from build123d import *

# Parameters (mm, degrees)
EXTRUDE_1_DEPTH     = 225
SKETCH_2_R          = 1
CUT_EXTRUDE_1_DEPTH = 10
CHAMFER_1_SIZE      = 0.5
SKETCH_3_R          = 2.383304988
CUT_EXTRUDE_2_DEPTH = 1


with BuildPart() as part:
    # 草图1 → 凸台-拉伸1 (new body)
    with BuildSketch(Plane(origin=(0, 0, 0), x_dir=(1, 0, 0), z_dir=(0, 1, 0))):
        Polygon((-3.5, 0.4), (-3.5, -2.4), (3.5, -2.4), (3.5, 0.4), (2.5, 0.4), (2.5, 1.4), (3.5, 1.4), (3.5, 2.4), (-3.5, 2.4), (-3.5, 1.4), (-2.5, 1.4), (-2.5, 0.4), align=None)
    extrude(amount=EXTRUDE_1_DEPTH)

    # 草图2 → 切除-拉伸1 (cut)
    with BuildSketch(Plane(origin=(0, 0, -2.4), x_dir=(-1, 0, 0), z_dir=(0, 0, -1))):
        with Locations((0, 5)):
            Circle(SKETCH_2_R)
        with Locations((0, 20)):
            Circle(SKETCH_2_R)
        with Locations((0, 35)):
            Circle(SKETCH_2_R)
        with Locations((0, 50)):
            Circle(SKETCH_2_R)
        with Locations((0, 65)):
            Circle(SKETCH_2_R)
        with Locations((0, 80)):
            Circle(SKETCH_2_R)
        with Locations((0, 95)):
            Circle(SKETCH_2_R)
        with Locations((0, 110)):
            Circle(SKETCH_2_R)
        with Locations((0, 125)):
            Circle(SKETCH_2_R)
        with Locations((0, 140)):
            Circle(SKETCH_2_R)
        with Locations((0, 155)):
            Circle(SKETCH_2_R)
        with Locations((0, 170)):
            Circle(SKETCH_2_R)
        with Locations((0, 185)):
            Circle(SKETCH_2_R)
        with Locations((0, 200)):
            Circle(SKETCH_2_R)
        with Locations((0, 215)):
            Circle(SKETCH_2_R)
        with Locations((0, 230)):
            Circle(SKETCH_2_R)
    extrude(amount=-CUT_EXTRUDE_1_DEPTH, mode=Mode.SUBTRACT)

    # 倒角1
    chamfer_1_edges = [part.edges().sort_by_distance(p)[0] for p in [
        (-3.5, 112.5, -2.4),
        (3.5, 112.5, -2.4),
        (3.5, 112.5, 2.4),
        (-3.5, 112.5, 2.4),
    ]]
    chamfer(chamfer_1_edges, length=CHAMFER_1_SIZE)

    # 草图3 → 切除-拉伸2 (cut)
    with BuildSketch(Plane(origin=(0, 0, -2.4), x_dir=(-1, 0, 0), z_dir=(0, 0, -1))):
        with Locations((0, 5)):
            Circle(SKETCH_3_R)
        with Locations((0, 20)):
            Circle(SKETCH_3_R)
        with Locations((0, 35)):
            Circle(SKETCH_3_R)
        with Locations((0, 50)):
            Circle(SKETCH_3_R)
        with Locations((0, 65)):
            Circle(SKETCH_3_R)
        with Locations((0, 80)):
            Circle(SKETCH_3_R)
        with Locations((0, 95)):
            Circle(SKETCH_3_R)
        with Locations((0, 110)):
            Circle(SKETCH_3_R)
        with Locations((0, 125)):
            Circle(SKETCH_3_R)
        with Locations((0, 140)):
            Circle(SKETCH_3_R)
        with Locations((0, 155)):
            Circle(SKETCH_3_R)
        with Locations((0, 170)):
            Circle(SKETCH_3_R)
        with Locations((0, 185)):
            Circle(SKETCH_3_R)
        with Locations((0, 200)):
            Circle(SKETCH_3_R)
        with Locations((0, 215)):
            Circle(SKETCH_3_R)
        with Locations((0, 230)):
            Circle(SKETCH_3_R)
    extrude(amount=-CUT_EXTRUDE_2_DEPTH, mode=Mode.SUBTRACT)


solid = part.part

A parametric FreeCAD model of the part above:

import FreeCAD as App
import Part
import Sketcher


def edges_at(feature, points):
    """Names of the edges that pass closest to the given points."""
    edges = feature.Shape.Edges
    near = lambda p: min(range(len(edges)), key=lambda i: edges[i].distToShape(Part.Vertex(*p))[0])
    return sorted({f"Edge{near(p) + 1}" for p in points})


def add_polygon(sketch, points):
    """Adds a closed chain of lines whose ends are joined by coincident constraints."""
    first, n = sketch.GeometryCount, len(points)
    for a, b in zip(points, points[1:] + points[:1]):
        sketch.addGeometry(Part.LineSegment(App.Vector(*a, 0), App.Vector(*b, 0)), False)
    for i in range(n):
        sketch.addConstraint(Sketcher.Constraint("Coincident", first + i, 2, first + (i + 1) % n, 1))

doc = App.newDocument("Part")
body = doc.addObject("PartDesign::Body", "Body")

# Sketch on XZ plane
sketch1 = body.newObject("Sketcher::SketchObject", "Sketch")
sketch1.AttachmentSupport = (doc.getObject("XZ_Plane"), [""])
sketch1.MapMode = "FlatFace"
add_polygon(sketch1, [(-3.5, -0.4), (-3.5, 2.4), (3.5, 2.4), (3.5, -0.4), (2.5, -0.4), (2.5, -1.4), (3.5, -1.4), (3.5, -2.4), (-3.5, -2.4), (-3.5, -1.4), (-2.5, -1.4), (-2.5, -0.4)])  # lines 0-11
sketch1.addConstraint([
    Sketcher.Constraint("Vertical", 0),
    Sketcher.Constraint("Horizontal", 1),
    Sketcher.Constraint("Vertical", 2),
    Sketcher.Constraint("Horizontal", 3),
    Sketcher.Constraint("Vertical", 4),
    Sketcher.Constraint("Horizontal", 5),
    Sketcher.Constraint("Vertical", 6),
    Sketcher.Constraint("Horizontal", 7),
    Sketcher.Constraint("Vertical", 8),
    Sketcher.Constraint("Horizontal", 9),
    Sketcher.Constraint("Vertical", 10),
    Sketcher.Constraint("Horizontal", 11),
    Sketcher.Constraint("Symmetric", 0, 2, 6, 2, -1, 1),
    Sketcher.Constraint("Symmetric", 5, 2, 8, 2, -2),
    Sketcher.Constraint("Symmetric", 3, 2, 10, 2, -2),
    Sketcher.Constraint("Vertical", 2, 2, 5, 2),
    Sketcher.Constraint("Equal", 11, 4),
    Sketcher.Constraint("Equal", 4, 6),
    Sketcher.Constraint("DistanceX", 1, 1, 1, 2, 7.0),
    Sketcher.Constraint("DistanceX", 3, 2, 3, 1, 1.0),
    Sketcher.Constraint("DistanceY", 0, 1, 0, 2, 2.8),
])
pad1 = body.newObject("PartDesign::Pad", "Pad")
pad1.Profile = sketch1
pad1.Length = 225
pad1.Reversed = True

# Sketch on XY plane
sketch2 = body.newObject("Sketcher::SketchObject", "Sketch001")
sketch2.AttachmentSupport = (doc.getObject("XY_Plane"), [""])
sketch2.MapMode = "FlatFace"
sketch2.AttachmentOffset = App.Placement(App.Vector(0, 0, -2.4), App.Rotation())
sketch2.addGeometry([
    Part.Circle(App.Vector(0, 5, 0), App.Vector(0, 0, 1), 1),  # 0
    Part.Circle(App.Vector(0, 20, 0), App.Vector(0, 0, 1), 1),  # 1
    Part.Circle(App.Vector(0, 35, 0), App.Vector(0, 0, 1), 1),  # 2
    Part.Circle(App.Vector(0, 50, 0), App.Vector(0, 0, 1), 1),  # 3
    Part.Circle(App.Vector(0, 65, 0), App.Vector(0, 0, 1), 1),  # 4
    Part.Circle(App.Vector(0, 80, 0), App.Vector(0, 0, 1), 1),  # 5
    Part.Circle(App.Vector(0, 95, 0), App.Vector(0, 0, 1), 1),  # 6
    Part.Circle(App.Vector(0, 110, 0), App.Vector(0, 0, 1), 1),  # 7
    Part.Circle(App.Vector(0, 125, 0), App.Vector(0, 0, 1), 1),  # 8
    Part.Circle(App.Vector(0, 140, 0), App.Vector(0, 0, 1), 1),  # 9
    Part.Circle(App.Vector(0, 155, 0), App.Vector(0, 0, 1), 1),  # 10
    Part.Circle(App.Vector(0, 170, 0), App.Vector(0, 0, 1), 1),  # 11
    Part.Circle(App.Vector(0, 185, 0), App.Vector(0, 0, 1), 1),  # 12
    Part.Circle(App.Vector(0, 200, 0), App.Vector(0, 0, 1), 1),  # 13
    Part.Circle(App.Vector(0, 215, 0), App.Vector(0, 0, 1), 1),  # 14
    Part.Circle(App.Vector(0, 230, 0), App.Vector(0, 0, 1), 1),  # 15
], False)
sketch2.addConstraint([
    Sketcher.Constraint("Equal", 0, 1),
    Sketcher.Constraint("Equal", 1, 2),
    Sketcher.Constraint("Equal", 2, 3),
    Sketcher.Constraint("Equal", 3, 4),
    Sketcher.Constraint("Equal", 4, 5),
    Sketcher.Constraint("Equal", 5, 6),
    Sketcher.Constraint("Equal", 6, 7),
    Sketcher.Constraint("Equal", 7, 8),
    Sketcher.Constraint("Equal", 8, 9),
    Sketcher.Constraint("Equal", 9, 10),
    Sketcher.Constraint("Equal", 10, 11),
    Sketcher.Constraint("Equal", 11, 12),
    Sketcher.Constraint("Equal", 12, 13),
    Sketcher.Constraint("Equal", 13, 14),
    Sketcher.Constraint("Equal", 14, 15),
    Sketcher.Constraint("PointOnObject", 0, 3, -2),
    Sketcher.Constraint("PointOnObject", 1, 3, -2),
    Sketcher.Constraint("PointOnObject", 2, 3, -2),
    Sketcher.Constraint("PointOnObject", 3, 3, -2),
    Sketcher.Constraint("PointOnObject", 4, 3, -2),
    Sketcher.Constraint("PointOnObject", 5, 3, -2),
    Sketcher.Constraint("PointOnObject", 6, 3, -2),
    Sketcher.Constraint("PointOnObject", 7, 3, -2),
    Sketcher.Constraint("PointOnObject", 8, 3, -2),
    Sketcher.Constraint("PointOnObject", 9, 3, -2),
    Sketcher.Constraint("PointOnObject", 10, 3, -2),
    Sketcher.Constraint("PointOnObject", 11, 3, -2),
    Sketcher.Constraint("PointOnObject", 12, 3, -2),
    Sketcher.Constraint("PointOnObject", 13, 3, -2),
    Sketcher.Constraint("PointOnObject", 14, 3, -2),
    Sketcher.Constraint("PointOnObject", 15, 3, -2),
    Sketcher.Constraint("Diameter", 0, 2.0),
    Sketcher.Constraint("DistanceY", -1, 1, 0, 3, 5.0),
    Sketcher.Constraint("DistanceY", -1, 1, 1, 3, 20.0),
    Sketcher.Constraint("DistanceY", -1, 1, 2, 3, 35.0),
    Sketcher.Constraint("DistanceY", -1, 1, 3, 3, 50.0),
    Sketcher.Constraint("DistanceY", -1, 1, 4, 3, 65.0),
    Sketcher.Constraint("DistanceY", -1, 1, 5, 3, 80.0),
    Sketcher.Constraint("DistanceY", -1, 1, 6, 3, 95.0),
    Sketcher.Constraint("DistanceY", -1, 1, 7, 3, 110.0),
    Sketcher.Constraint("DistanceY", -1, 1, 8, 3, 125.0),
    Sketcher.Constraint("DistanceY", -1, 1, 9, 3, 140.0),
    Sketcher.Constraint("DistanceY", -1, 1, 10, 3, 155.0),
    Sketcher.Constraint("DistanceY", -1, 1, 11, 3, 170.0),
    Sketcher.Constraint("DistanceY", -1, 1, 12, 3, 185.0),
    Sketcher.Constraint("DistanceY", -1, 1, 13, 3, 200.0),
    Sketcher.Constraint("DistanceY", -1, 1, 14, 3, 215.0),
    Sketcher.Constraint("DistanceY", -1, 1, 15, 3, 230.0),
])
pocket1 = body.newObject("PartDesign::Pocket", "Pocket")
pocket1.Profile = sketch2
pocket1.Length = 10
pocket1.Reversed = True
doc.recompute()

chamfer = body.newObject("PartDesign::Chamfer", "Chamfer")
chamfer.Base = (pocket1, edges_at(pocket1, [
    (-3.5, 112.5, -2.4),
    (3.5, 112.5, -2.4),
    (3.5, 112.5, 2.4),
    (-3.5, 112.5, 2.4),
]))
chamfer.Size = 0.5

# Sketch on XY plane
sketch3 = body.newObject("Sketcher::SketchObject", "Sketch002")
sketch3.AttachmentSupport = (doc.getObject("XY_Plane"), [""])
sketch3.MapMode = "FlatFace"
sketch3.AttachmentOffset = App.Placement(App.Vector(0, 0, -2.4), App.Rotation())
sketch3.addGeometry([
    Part.Circle(App.Vector(0, 5, 0), App.Vector(0, 0, 1), 2.383305),  # 0
    Part.Circle(App.Vector(0, 20, 0), App.Vector(0, 0, 1), 2.383305),  # 1
    Part.Circle(App.Vector(0, 35, 0), App.Vector(0, 0, 1), 2.383305),  # 2
    Part.Circle(App.Vector(0, 50, 0), App.Vector(0, 0, 1), 2.383305),  # 3
    Part.Circle(App.Vector(0, 65, 0), App.Vector(0, 0, 1), 2.383305),  # 4
    Part.Circle(App.Vector(0, 80, 0), App.Vector(0, 0, 1), 2.383305),  # 5
    Part.Circle(App.Vector(0, 95, 0), App.Vector(0, 0, 1), 2.383305),  # 6
    Part.Circle(App.Vector(0, 110, 0), App.Vector(0, 0, 1), 2.383305),  # 7
    Part.Circle(App.Vector(0, 125, 0), App.Vector(0, 0, 1), 2.383305),  # 8
    Part.Circle(App.Vector(0, 140, 0), App.Vector(0, 0, 1), 2.383305),  # 9
    Part.Circle(App.Vector(0, 155, 0), App.Vector(0, 0, 1), 2.383305),  # 10
    Part.Circle(App.Vector(0, 170, 0), App.Vector(0, 0, 1), 2.383305),  # 11
    Part.Circle(App.Vector(0, 185, 0), App.Vector(0, 0, 1), 2.383305),  # 12
    Part.Circle(App.Vector(0, 200, 0), App.Vector(0, 0, 1), 2.383305),  # 13
    Part.Circle(App.Vector(0, 215, 0), App.Vector(0, 0, 1), 2.383305),  # 14
    Part.Circle(App.Vector(0, 230, 0), App.Vector(0, 0, 1), 2.383305),  # 15
], False)
sketch3.addConstraint([
    Sketcher.Constraint("Equal", 0, 1),
    Sketcher.Constraint("Equal", 1, 2),
    Sketcher.Constraint("Equal", 2, 3),
    Sketcher.Constraint("Equal", 3, 4),
    Sketcher.Constraint("Equal", 4, 5),
    Sketcher.Constraint("Equal", 5, 6),
    Sketcher.Constraint("Equal", 6, 7),
    Sketcher.Constraint("Equal", 7, 8),
    Sketcher.Constraint("Equal", 8, 9),
    Sketcher.Constraint("Equal", 9, 10),
    Sketcher.Constraint("Equal", 10, 11),
    Sketcher.Constraint("Equal", 11, 12),
    Sketcher.Constraint("Equal", 12, 13),
    Sketcher.Constraint("Equal", 13, 14),
    Sketcher.Constraint("Equal", 14, 15),
    Sketcher.Constraint("PointOnObject", 0, 3, -2),
    Sketcher.Constraint("PointOnObject", 1, 3, -2),
    Sketcher.Constraint("PointOnObject", 2, 3, -2),
    Sketcher.Constraint("PointOnObject", 3, 3, -2),
    Sketcher.Constraint("PointOnObject", 4, 3, -2),
    Sketcher.Constraint("PointOnObject", 5, 3, -2),
    Sketcher.Constraint("PointOnObject", 6, 3, -2),
    Sketcher.Constraint("PointOnObject", 7, 3, -2),
    Sketcher.Constraint("PointOnObject", 8, 3, -2),
    Sketcher.Constraint("PointOnObject", 9, 3, -2),
    Sketcher.Constraint("PointOnObject", 10, 3, -2),
    Sketcher.Constraint("PointOnObject", 11, 3, -2),
    Sketcher.Constraint("PointOnObject", 12, 3, -2),
    Sketcher.Constraint("PointOnObject", 13, 3, -2),
    Sketcher.Constraint("PointOnObject", 14, 3, -2),
    Sketcher.Constraint("PointOnObject", 15, 3, -2),
    Sketcher.Constraint("DistanceY", -1, 1, 0, 3, 5.0),
    Sketcher.Constraint("DistanceY", -1, 1, 1, 3, 20.0),
    Sketcher.Constraint("DistanceY", -1, 1, 2, 3, 35.0),
    Sketcher.Constraint("DistanceY", -1, 1, 3, 3, 50.0),
    Sketcher.Constraint("DistanceY", -1, 1, 4, 3, 65.0),
    Sketcher.Constraint("DistanceY", -1, 1, 5, 3, 80.0),
    Sketcher.Constraint("DistanceY", -1, 1, 6, 3, 95.0),
    Sketcher.Constraint("DistanceY", -1, 1, 7, 3, 110.0),
    Sketcher.Constraint("DistanceY", -1, 1, 8, 3, 125.0),
    Sketcher.Constraint("DistanceY", -1, 1, 9, 3, 140.0),
    Sketcher.Constraint("DistanceY", -1, 1, 10, 3, 155.0),
    Sketcher.Constraint("DistanceY", -1, 1, 11, 3, 170.0),
    Sketcher.Constraint("DistanceY", -1, 1, 12, 3, 185.0),
    Sketcher.Constraint("DistanceY", -1, 1, 13, 3, 200.0),
    Sketcher.Constraint("DistanceY", -1, 1, 14, 3, 215.0),
    Sketcher.Constraint("DistanceY", -1, 1, 15, 3, 230.0),
    Sketcher.Constraint("Diameter", 0, 4.76661),
])
pocket2 = body.newObject("PartDesign::Pocket", "Pocket001")
pocket2.Profile = sketch3
pocket2.Length = 1
pocket2.Reversed = True

doc.recompute()
